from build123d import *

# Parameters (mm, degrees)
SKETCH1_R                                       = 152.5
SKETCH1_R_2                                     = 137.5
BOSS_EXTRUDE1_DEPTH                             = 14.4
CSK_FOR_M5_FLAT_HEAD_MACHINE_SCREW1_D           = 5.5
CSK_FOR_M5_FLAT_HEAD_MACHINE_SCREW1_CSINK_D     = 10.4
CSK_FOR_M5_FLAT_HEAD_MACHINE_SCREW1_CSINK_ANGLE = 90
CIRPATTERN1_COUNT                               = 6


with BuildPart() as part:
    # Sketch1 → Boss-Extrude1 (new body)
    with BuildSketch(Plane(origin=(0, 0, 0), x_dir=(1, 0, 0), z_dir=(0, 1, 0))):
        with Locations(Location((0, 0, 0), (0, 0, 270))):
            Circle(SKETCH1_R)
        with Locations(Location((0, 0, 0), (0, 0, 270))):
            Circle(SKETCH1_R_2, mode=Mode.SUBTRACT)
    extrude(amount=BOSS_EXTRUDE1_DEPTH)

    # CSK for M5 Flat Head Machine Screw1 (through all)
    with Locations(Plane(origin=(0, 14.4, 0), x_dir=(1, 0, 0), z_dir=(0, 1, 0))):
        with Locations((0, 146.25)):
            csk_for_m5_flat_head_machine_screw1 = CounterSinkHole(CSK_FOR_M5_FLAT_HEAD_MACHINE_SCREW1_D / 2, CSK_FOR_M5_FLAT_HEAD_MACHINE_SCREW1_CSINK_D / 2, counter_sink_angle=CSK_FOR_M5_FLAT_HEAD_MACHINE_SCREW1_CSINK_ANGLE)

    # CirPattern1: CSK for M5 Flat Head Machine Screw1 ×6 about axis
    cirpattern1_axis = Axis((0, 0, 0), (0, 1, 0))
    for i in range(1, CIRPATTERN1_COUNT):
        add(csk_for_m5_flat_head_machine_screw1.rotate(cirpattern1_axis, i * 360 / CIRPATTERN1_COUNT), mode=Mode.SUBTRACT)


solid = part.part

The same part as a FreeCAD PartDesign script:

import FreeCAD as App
import Part
import Sketcher
from FreeCAD import Vector
Q = App.Units.Quantity

doc = App.newDocument("Part")
params = doc.addObject("Spreadsheet::Sheet", "Params")
for row, (alias, value) in enumerate([
    ("sketch1_diameter", "305 mm"),
    ("sketch1_diameter2", "275 mm"),
    ("pad1_length", "14.4 mm"),
    ("sketch2_diameter", "5.5 mm"),
    ("hole_diameter", "5.5 mm"),
    ("hole_csink_diameter", "10.4 mm"),
], start=1):
    params.set(f"A{row}", alias)
    params.set(f"B{row}", "=" + value)
    params.setAlias(f"B{row}", alias)

body = doc.addObject("PartDesign::Body", "Body")

sketch1 = doc.addObject("Sketcher::SketchObject", "Sketch")
body.addObject(sketch1)
sketch1.AttachmentSupport = (doc.XZ_Plane, [""])
sketch1.MapMode = "FlatFace"
sketch1.addGeometry(Part.Circle(Vector(0, 0, 0), Vector(0, 0, 1), 152), False)
sketch1.addGeometry(Part.Circle(Vector(0, 0, 0), Vector(0, 0, 1), 138), False)
sketch1.addConstraint(Sketcher.Constraint("Coincident", 0, 3, -1, 1))
sketch1.addConstraint(Sketcher.Constraint("Coincident", 1, 3, -1, 1))
sketch1.addConstraint(Sketcher.Constraint("Diameter", 0, Q("305 mm")))
sketch1.addConstraint(Sketcher.Constraint("Diameter", 1, Q("275 mm")))
sketch1.setExpression("Constraints[2]", "Params.sketch1_diameter")
sketch1.setExpression("Constraints[3]", "Params.sketch1_diameter2")
pad1 = doc.addObject("PartDesign::Pad", "Pad")
body.addObject(pad1)
pad1.Profile = sketch1
pad1.setExpression("Length", "Params.pad1_length")
pad1.Reversed = True

sketch2 = doc.addObject("Sketcher::SketchObject", "Sketch001")
body.addObject(sketch2)
sketch2.AttachmentSupport = (doc.XZ_Plane, [""])
sketch2.MapMode = "FlatFace"
sketch2.AttachmentOffset = App.Placement(Vector(0, 0, -14.4), App.Rotation())
sketch2.addGeometry(Part.Circle(Vector(0, -146.2, 0), Vector(0, 0, 1), 2.8), False)
sketch2.addConstraint(Sketcher.Constraint("PointOnObject", 0, 3, -2))
sketch2.addConstraint(Sketcher.Constraint("Diameter", 0, Q("5.5 mm")))
sketch2.addConstraint(Sketcher.Constraint("DistanceY", 0, 3, -1, 1, Q("146.25 mm")))
sketch2.setExpression("Constraints[1]", "Params.sketch2_diameter")
doc.recompute()
hole = doc.addObject("PartDesign::Hole", "Hole")
body.addObject(hole)
hole.Profile = sketch2
hole.ThreadType = "None"
hole.setExpression("Diameter", "Params.hole_diameter")
hole.DepthType = "ThroughAll"
hole.HoleCutType = "Countersink"
hole.setExpression("HoleCutDiameter", "Params.hole_csink_diameter")
hole.HoleCutCountersinkAngle = 90
hole.Reversed = True
doc.recompute()

polarpattern = doc.addObject("PartDesign::PolarPattern", "PolarPattern")
body.addObject(polarpattern)
polarpattern.Originals = [hole]
polarpattern.Axis = (doc.Y_Axis, [""])
polarpattern.Angle = 360
polarpattern.Occurrences = 6
body.Tip = polarpattern

doc.recompute()
